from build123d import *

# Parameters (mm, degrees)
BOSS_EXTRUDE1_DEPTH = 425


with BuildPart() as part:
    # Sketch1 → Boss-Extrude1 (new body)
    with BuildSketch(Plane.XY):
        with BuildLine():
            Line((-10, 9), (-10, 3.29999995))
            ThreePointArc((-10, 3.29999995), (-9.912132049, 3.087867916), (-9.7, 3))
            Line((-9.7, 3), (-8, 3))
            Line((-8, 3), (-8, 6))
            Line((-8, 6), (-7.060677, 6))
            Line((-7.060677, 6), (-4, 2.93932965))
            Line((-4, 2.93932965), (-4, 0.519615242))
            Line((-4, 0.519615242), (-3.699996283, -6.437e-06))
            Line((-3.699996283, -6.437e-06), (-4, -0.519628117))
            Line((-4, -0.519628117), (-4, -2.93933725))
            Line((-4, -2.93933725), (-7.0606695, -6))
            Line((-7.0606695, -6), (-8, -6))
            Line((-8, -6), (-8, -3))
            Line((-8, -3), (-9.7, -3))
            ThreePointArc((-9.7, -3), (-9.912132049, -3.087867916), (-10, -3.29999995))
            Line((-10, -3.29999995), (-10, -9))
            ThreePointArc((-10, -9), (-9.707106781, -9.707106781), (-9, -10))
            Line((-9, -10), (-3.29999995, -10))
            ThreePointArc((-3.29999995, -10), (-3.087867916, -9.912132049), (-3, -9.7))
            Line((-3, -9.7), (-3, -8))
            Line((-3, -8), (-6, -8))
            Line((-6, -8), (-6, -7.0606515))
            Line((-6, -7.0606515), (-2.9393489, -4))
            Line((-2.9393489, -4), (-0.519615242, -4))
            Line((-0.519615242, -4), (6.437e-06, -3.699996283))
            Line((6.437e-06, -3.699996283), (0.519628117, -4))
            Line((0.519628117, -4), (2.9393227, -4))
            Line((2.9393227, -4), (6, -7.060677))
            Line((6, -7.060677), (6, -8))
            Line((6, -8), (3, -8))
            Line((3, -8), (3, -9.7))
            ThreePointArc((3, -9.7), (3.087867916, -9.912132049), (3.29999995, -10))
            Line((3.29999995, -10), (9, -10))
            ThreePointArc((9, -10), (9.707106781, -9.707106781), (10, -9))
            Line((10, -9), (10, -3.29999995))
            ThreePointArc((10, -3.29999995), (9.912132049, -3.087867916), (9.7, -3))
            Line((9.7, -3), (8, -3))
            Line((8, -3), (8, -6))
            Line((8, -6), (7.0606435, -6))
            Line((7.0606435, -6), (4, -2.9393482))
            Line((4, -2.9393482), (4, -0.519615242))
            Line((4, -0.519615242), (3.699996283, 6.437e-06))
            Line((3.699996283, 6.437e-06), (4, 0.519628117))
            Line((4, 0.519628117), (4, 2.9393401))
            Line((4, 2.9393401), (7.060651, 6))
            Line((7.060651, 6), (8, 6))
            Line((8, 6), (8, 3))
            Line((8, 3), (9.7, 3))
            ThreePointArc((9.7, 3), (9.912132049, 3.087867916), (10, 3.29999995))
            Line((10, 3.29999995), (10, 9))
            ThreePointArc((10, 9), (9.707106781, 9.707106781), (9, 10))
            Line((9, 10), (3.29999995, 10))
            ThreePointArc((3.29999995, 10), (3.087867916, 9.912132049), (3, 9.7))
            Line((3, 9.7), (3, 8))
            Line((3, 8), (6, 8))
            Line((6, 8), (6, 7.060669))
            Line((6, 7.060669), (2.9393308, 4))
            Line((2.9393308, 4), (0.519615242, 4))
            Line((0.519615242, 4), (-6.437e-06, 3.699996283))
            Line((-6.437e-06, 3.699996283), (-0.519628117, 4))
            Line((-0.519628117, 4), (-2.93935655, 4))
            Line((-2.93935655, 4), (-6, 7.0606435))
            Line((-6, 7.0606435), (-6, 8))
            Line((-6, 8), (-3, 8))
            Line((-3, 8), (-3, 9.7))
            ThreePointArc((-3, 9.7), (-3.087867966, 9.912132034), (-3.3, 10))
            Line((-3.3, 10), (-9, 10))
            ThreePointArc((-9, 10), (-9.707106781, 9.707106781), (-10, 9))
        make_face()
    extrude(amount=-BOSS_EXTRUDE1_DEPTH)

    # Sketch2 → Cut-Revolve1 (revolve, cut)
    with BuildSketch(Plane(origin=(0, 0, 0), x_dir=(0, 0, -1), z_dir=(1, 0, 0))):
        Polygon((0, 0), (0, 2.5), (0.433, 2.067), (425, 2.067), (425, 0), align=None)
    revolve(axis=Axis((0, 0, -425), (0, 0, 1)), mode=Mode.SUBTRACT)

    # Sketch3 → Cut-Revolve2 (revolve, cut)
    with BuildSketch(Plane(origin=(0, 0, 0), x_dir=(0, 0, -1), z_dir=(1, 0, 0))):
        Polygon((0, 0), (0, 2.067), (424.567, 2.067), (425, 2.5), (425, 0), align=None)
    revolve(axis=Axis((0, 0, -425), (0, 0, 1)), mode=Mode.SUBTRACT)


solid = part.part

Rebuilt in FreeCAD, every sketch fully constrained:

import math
import FreeCAD as App
import Part
import Sketcher

V = App.Vector
Q = App.Units.Quantity


def add_polygon(sketch, points):
    """Adds a closed chain of lines whose ends are joined by coincident constraints."""
    first, n = sketch.GeometryCount, len(points)
    for a, b in zip(points, points[1:] + points[:1]):
        sketch.addGeometry(Part.LineSegment(App.Vector(*a, 0), App.Vector(*b, 0)), False)
    for i in range(n):
        sketch.addConstraint(Sketcher.Constraint("Coincident", first + i, 2, first + (i + 1) % n, 1))

doc = App.newDocument("Part")
params = doc.addObject("Spreadsheet::Sheet", "Params")
for row, (alias, value) in enumerate([
    ("sketch1_radius", "1 mm"),
    ("sketch1_radius2", "0.3 mm"),
    ("sketch1_width", "3 mm"),
    ("sketch1_width2", "1.7 mm"),
    ("sketch1_width3", "5.7 mm"),
    ("pad1_length", "425 mm"),
    ("sketch2_height", "425 mm"),
    ("sketch2_width", "2.5 mm"),
    ("groove_angle", "360 deg"),
    ("sketch3_height", "425 mm"),
    ("sketch3_width", "2.5 mm"),
    ("groove2_angle", "360 deg"),
], start=1):
    params.set(f"A{row}", alias)
    params.set(f"B{row}", "=" + value)
    params.setAlias(f"B{row}", alias)

body = doc.addObject("PartDesign::Body", "Body")

sketch1 = body.newObject("Sketcher::SketchObject", "Sketch")
sketch1.AttachmentSupport = (doc.getObject("XY_Plane"), [""])
sketch1.MapMode = "FlatFace"
sketch1.addGeometry(Part.LineSegment(V(-10, 9, 0), V(-10, 3.3, 0)), False)
sketch1.addGeometry(Part.ArcOfCircle(Part.Circle(V(-9.7, 3.3, 0), V(0, 0, 1), 0.3), math.radians(180), math.radians(270)), False)
sketch1.addGeometry(Part.LineSegment(V(-9.7, 3, 0), V(-8, 3, 0)), False)
sketch1.addGeometry(Part.LineSegment(V(-8, 3, 0), V(-8, 6, 0)), False)
sketch1.addGeometry(Part.LineSegment(V(-8, 6, 0), V(-7.06, 6, 0)), False)
sketch1.addGeometry(Part.LineSegment(V(-7.06, 6, 0), V(-4, 2.94, 0)), False)
sketch1.addGeometry(Part.LineSegment(V(-4, 2.94, 0), V(-4, 0.52, 0)), False)
sketch1.addGeometry(Part.LineSegment(V(-4, 0.52, 0), V(-3.7, 0, 0)), False)
sketch1.addGeometry(Part.LineSegment(V(-3.7, 0, 0), V(-4, -0.52, 0)), False)
sketch1.addGeometry(Part.LineSegment(V(-4, -0.52, 0), V(-4, -2.94, 0)), False)
sketch1.addGeometry(Part.LineSegment(V(-4, -2.94, 0), V(-7.06, -6, 0)), False)
sketch1.addGeometry(Part.LineSegment(V(-7.06, -6, 0), V(-8, -6, 0)), False)
sketch1.addGeometry(Part.LineSegment(V(-8, -6, 0), V(-8, -3, 0)), False)
sketch1.addGeometry(Part.LineSegment(V(-8, -3, 0), V(-9.7, -3, 0)), False)
sketch1.addGeometry(Part.ArcOfCircle(Part.Circle(V(-9.7, -3.3, 0), V(0, 0, 1), 0.3), math.radians(90), math.radians(180)), False)
sketch1.addGeometry(Part.LineSegment(V(-10, -3.3, 0), V(-10, -9, 0)), False)
sketch1.addGeometry(Part.ArcOfCircle(Part.Circle(V(-9, -9, 0), V(0, 0, 1), 1), math.radians(-180), math.radians(-90)), False)
sketch1.addGeometry(Part.LineSegment(V(-9, -10, 0), V(-3.3, -10, 0)), False)
sketch1.addGeometry(Part.ArcOfCircle(Part.Circle(V(-3.3, -9.7, 0), V(0, 0, 1), 0.3), math.radians(-90), math.radians(0)), False)
sketch1.addGeometry(Part.LineSegment(V(-3, -9.7, 0), V(-3, -8, 0)), False)
sketch1.addGeometry(Part.LineSegment(V(-3, -8, 0), V(-6, -8, 0)), False)
sketch1.addGeometry(Part.LineSegment(V(-6, -8, 0), V(-6, -7.06, 0)), False)
sketch1.addGeometry(Part.LineSegment(V(-6, -7.06, 0), V(-2.94, -4, 0)), False)
sketch1.addGeometry(Part.LineSegment(V(-2.94, -4, 0), V(-0.52, -4, 0)), False)
sketch1.addGeometry(Part.LineSegment(V(-0.52, -4, 0), V(0, -3.7, 0)), False)
sketch1.addGeometry(Part.LineSegment(V(0, -3.7, 0), V(0.52, -4, 0)), False)
sketch1.addGeometry(Part.LineSegment(V(0.52, -4, 0), V(2.94, -4, 0)), False)
sketch1.addGeometry(Part.LineSegment(V(2.94, -4, 0), V(6, -7.06, 0)), False)
sketch1.addGeometry(Part.LineSegment(V(6, -7.06, 0), V(6, -8, 0)), False)
sketch1.addGeometry(Part.LineSegment(V(6, -8, 0), V(3, -8, 0)), False)
sketch1.addGeometry(Part.LineSegment(V(3, -8, 0), V(3, -9.7, 0)), False)
sketch1.addGeometry(Part.ArcOfCircle(Part.Circle(V(3.3, -9.7, 0), V(0, 0, 1), 0.3), math.radians(180), math.radians(270)), False)
sketch1.addGeometry(Part.LineSegment(V(3.3, -10, 0), V(9, -10, 0)), False)
sketch1.addGeometry(Part.ArcOfCircle(Part.Circle(V(9, -9, 0), V(0, 0, 1), 1), math.radians(-90), math.radians(0)), False)
sketch1.addGeometry(Part.LineSegment(V(10, -9, 0), V(10, -3.3, 0)), False)
sketch1.addGeometry(Part.ArcOfCircle(Part.Circle(V(9.7, -3.3, 0), V(0, 0, 1), 0.3), math.radians(0), math.radians(90)), False)
sketch1.addGeometry(Part.LineSegment(V(9.7, -3, 0), V(8, -3, 0)), False)
sketch1.addGeometry(Part.LineSegment(V(8, -3, 0), V(8, -6, 0)), False)
sketch1.addGeometry(Part.LineSegment(V(8, -6, 0), V(7.06, -6, 0)), False)
sketch1.addGeometry(Part.LineSegment(V(7.06, -6, 0), V(4, -2.94, 0)), False)
sketch1.addGeometry(Part.LineSegment(V(4, -2.94, 0), V(4, -0.52, 0)), False)
sketch1.addGeometry(Part.LineSegment(V(4, -0.52, 0), V(3.7, 0, 0)), False)
sketch1.addGeometry(Part.LineSegment(V(3.7, 0, 0), V(4, 0.52, 0)), False)
sketch1.addGeometry(Part.LineSegment(V(4, 0.52, 0), V(4, 2.94, 0)), False)
sketch1.addGeometry(Part.LineSegment(V(4, 2.94, 0), V(7.06, 6, 0)), False)
sketch1.addGeometry(Part.LineSegment(V(7.06, 6, 0), V(8, 6, 0)), False)
sketch1.addGeometry(Part.LineSegment(V(8, 6, 0), V(8, 3, 0)), False)
sketch1.addGeometry(Part.LineSegment(V(8, 3, 0), V(9.7, 3, 0)), False)
sketch1.addGeometry(Part.ArcOfCircle(Part.Circle(V(9.7, 3.3, 0), V(0, 0, 1), 0.3), math.radians(-90), math.radians(0)), False)
sketch1.addGeometry(Part.LineSegment(V(10, 3.3, 0), V(10, 9, 0)), False)
sketch1.addGeometry(Part.ArcOfCircle(Part.Circle(V(9, 9, 0), V(0, 0, 1), 1), math.radians(0), math.radians(90)), False)
sketch1.addGeometry(Part.LineSegment(V(9, 10, 0), V(3.3, 10, 0)), False)
sketch1.addGeometry(Part.ArcOfCircle(Part.Circle(V(3.3, 9.7, 0), V(0, 0, 1), 0.3), math.radians(90), math.radians(180)), False)
sketch1.addGeometry(Part.LineSegment(V(3, 9.7, 0), V(3, 8, 0)), False)
sketch1.addGeometry(Part.LineSegment(V(3, 8, 0), V(6, 8, 0)), False)
sketch1.addGeometry(Part.LineSegment(V(6, 8, 0), V(6, 7.06, 0)), False)
sketch1.addGeometry(Part.LineSegment(V(6, 7.06, 0), V(2.94, 4, 0)), False)
sketch1.addGeometry(Part.LineSegment(V(2.94, 4, 0), V(0.52, 4, 0)), False)
sketch1.addGeometry(Part.LineSegment(V(0.52, 4, 0), V(0, 3.7, 0)), False)
sketch1.addGeometry(Part.LineSegment(V(0, 3.7, 0), V(-0.52, 4, 0)), False)
sketch1.addGeometry(Part.LineSegment(V(-0.52, 4, 0), V(-2.94, 4, 0)), False)
sketch1.addGeometry(Part.LineSegment(V(-2.94, 4, 0), V(-6, 7.06, 0)), False)
sketch1.addGeometry(Part.LineSegment(V(-6, 7.06, 0), V(-6, 8, 0)), False)
sketch1.addGeometry(Part.LineSegment(V(-6, 8, 0), V(-3, 8, 0)), False)
sketch1.addGeometry(Part.LineSegment(V(-3, 8, 0), V(-3, 9.7, 0)), False)
sketch1.addGeometry(Part.ArcOfCircle(Part.Circle(V(-3.3, 9.7, 0), V(0, 0, 1), 0.3), math.radians(0), math.radians(90)), False)
sketch1.addGeometry(Part.LineSegment(V(-3.3, 10, 0), V(-9, 10, 0)), False)
sketch1.addGeometry(Part.ArcOfCircle(Part.Circle(V(-9, 9, 0), V(0, 0, 1), 1), math.radians(90), math.radians(180)), False)
sketch1.addConstraint(Sketcher.Constraint("Tangent", 0, 2, 1, 1))
sketch1.addConstraint(Sketcher.Constraint("Tangent", 1, 2, 2, 1))
sketch1.addConstraint(Sketcher.Constraint("Coincident", 2, 2, 3, 1))
sketch1.addConstraint(Sketcher.Constraint("Coincident", 3, 2, 4, 1))
sketch1.addConstraint(Sketcher.Constraint("Coincident", 4, 2, 5, 1))
sketch1.addConstraint(Sketcher.Constraint("Coincident", 5, 2, 6, 1))
sketch1.addConstraint(Sketcher.Constraint("Coincident", 6, 2, 7, 1))
sketch1.addConstraint(Sketcher.Constraint("Coincident", 7, 2, 8, 1))
sketch1.addConstraint(Sketcher.Constraint("Coincident", 8, 2, 9, 1))
sketch1.addConstraint(Sketcher.Constraint("Coincident", 9, 2, 10, 1))
sketch1.addConstraint(Sketcher.Constraint("Coincident", 10, 2, 11, 1))
sketch1.addConstraint(Sketcher.Constraint("Coincident", 11, 2, 12, 1))
sketch1.addConstraint(Sketcher.Constraint("Coincident", 12, 2, 13, 1))
sketch1.addConstraint(Sketcher.Constraint("Tangent", 13, 2, 14, 1))
sketch1.addConstraint(Sketcher.Constraint("Tangent", 14, 2, 15, 1))
sketch1.addConstraint(Sketcher.Constraint("Tangent", 15, 2, 16, 1))
sketch1.addConstraint(Sketcher.Constraint("Tangent", 16, 2, 17, 1))
sketch1.addConstraint(Sketcher.Constraint("Tangent", 17, 2, 18, 1))
sketch1.addConstraint(Sketcher.Constraint("Tangent", 18, 2, 19, 1))
sketch1.addConstraint(Sketcher.Constraint("Coincident", 19, 2, 20, 1))
sketch1.addConstraint(Sketcher.Constraint("Coincident", 20, 2, 21, 1))
sketch1.addConstraint(Sketcher.Constraint("Coincident", 21, 2, 22, 1))
sketch1.addConstraint(Sketcher.Constraint("Coincident", 22, 2, 23, 1))
sketch1.addConstraint(Sketcher.Constraint("Coincident", 23, 2, 24, 1))
sketch1.addConstraint(Sketcher.Constraint("Coincident", 24, 2, 25, 1))
sketch1.addConstraint(Sketcher.Constraint("Coincident", 25, 2, 26, 1))
sketch1.addConstraint(Sketcher.Constraint("Coincident", 26, 2, 27, 1))
sketch1.addConstraint(Sketcher.Constraint("Coincident", 27, 2, 28, 1))
sketch1.addConstraint(Sketcher.Constraint("Coincident", 28, 2, 29, 1))
sketch1.addConstraint(Sketcher.Constraint("Coincident", 29, 2, 30, 1))
sketch1.addConstraint(Sketcher.Constraint("Tangent", 30, 2, 31, 1))
sketch1.addConstraint(Sketcher.Constraint("Tangent", 31, 2, 32, 1))
sketch1.addConstraint(Sketcher.Constraint("Tangent", 32, 2, 33, 1))
sketch1.addConstraint(Sketcher.Constraint("Tangent", 33, 2, 34, 1))
sketch1.addConstraint(Sketcher.Constraint("Tangent", 34, 2, 35, 1))
sketch1.addConstraint(Sketcher.Constraint("Tangent", 35, 2, 36, 1))
sketch1.addConstraint(Sketcher.Constraint("Coincident", 36, 2, 37, 1))
sketch1.addConstraint(Sketcher.Constraint("Coincident", 37, 2, 38, 1))
sketch1.addConstraint(Sketcher.Constraint("Coincident", 38, 2, 39, 1))
sketch1.addConstraint(Sketcher.Constraint("Coincident", 39, 2, 40, 1))
sketch1.addConstraint(Sketcher.Constraint("Coincident", 40, 2, 41, 1))
sketch1.addConstraint(Sketcher.Constraint("Coincident", 41, 2, 42, 1))
sketch1.addConstraint(Sketcher.Constraint("Coincident", 42, 2, 43, 1))
sketch1.addConstraint(Sketcher.Constraint("Coincident", 43, 2, 44, 1))
sketch1.addConstraint(Sketcher.Constraint("Coincident", 44, 2, 45, 1))
sketch1.addConstraint(Sketcher.Constraint("Coincident", 45, 2, 46, 1))
sketch1.addConstraint(Sketcher.Constraint("Coincident", 46, 2, 47, 1))
sketch1.addConstraint(Sketcher.Constraint("Tangent", 47, 2, 48, 1))
sketch1.addConstraint(Sketcher.Constraint("Tangent", 48, 2, 49, 1))
sketch1.addConstraint(Sketcher.Constraint("Tangent", 49, 2, 50, 1))
sketch1.addConstraint(Sketcher.Constraint("Tangent", 50, 2, 51, 1))
sketch1.addConstraint(Sketcher.Constraint("Tangent", 51, 2, 52, 1))
sketch1.addConstraint(Sketcher.Constraint("Tangent", 52, 2, 53, 1))
sketch1.addConstraint(Sketcher.Constraint("Coincident", 53, 2, 54, 1))
sketch1.addConstraint(Sketcher.Constraint("Coincident", 54, 2, 55, 1))
sketch1.addConstraint(Sketcher.Constraint("Coincident", 55, 2, 56, 1))
sketch1.addConstraint(Sketcher.Constraint("Coincident", 56, 2, 57, 1))
sketch1.addConstraint(Sketcher.Constraint("Coincident", 57, 2, 58, 1))
sketch1.addConstraint(Sketcher.Constraint("Coincident", 58, 2, 59, 1))
sketch1.addConstraint(Sketcher.Constraint("Coincident", 59, 2, 60, 1))
sketch1.addConstraint(Sketcher.Constraint("Coincident", 60, 2, 61, 1))
sketch1.addConstraint(Sketcher.Constraint("Coincident", 61, 2, 62, 1))
sketch1.addConstraint(Sketcher.Constraint("Coincident", 62, 2, 63, 1))
sketch1.addConstraint(Sketcher.Constraint("Coincident", 63, 2, 64, 1))
sketch1.addConstraint(Sketcher.Constraint("Tangent", 64, 2, 65, 1))
sketch1.addConstraint(Sketcher.Constraint("Tangent", 65, 2, 66, 1))
sketch1.addConstraint(Sketcher.Constraint("Tangent", 66, 2, 67, 1))
sketch1.addConstraint(Sketcher.Constraint("Tangent", 67, 2, 0, 1))
sketch1.addConstraint(Sketcher.Constraint("Vertical", 0))
sketch1.addConstraint(Sketcher.Constraint("Horizontal", 2))
sketch1.addConstraint(Sketcher.Constraint("Vertical", 3))
sketch1.addConstraint(Sketcher.Constraint("Horizontal", 4))
sketch1.addConstraint(Sketcher.Constraint("Vertical", 6))
sketch1.addConstraint(Sketcher.Constraint("Vertical", 9))
sketch1.addConstraint(Sketcher.Constraint("Horizontal", 11))
sketch1.addConstraint(Sketcher.Constraint("Vertical", 12))
sketch1.addConstraint(Sketcher.Constraint("Horizontal", 13))
sketch1.addConstraint(Sketcher.Constraint("Vertical", 15))
sketch1.addConstraint(Sketcher.Constraint("Horizontal", 17))
sketch1.addConstraint(Sketcher.Constraint("Vertical", 19))
sketch1.addConstraint(Sketcher.Constraint("Horizontal", 20))
sketch1.addConstraint(Sketcher.Constraint("Vertical", 21))
sketch1.addConstraint(Sketcher.Constraint("Horizontal", 23))
sketch1.addConstraint(Sketcher.Constraint("Horizontal", 26))
sketch1.addConstraint(Sketcher.Constraint("Vertical", 28))
sketch1.addConstraint(Sketcher.Constraint("Horizontal", 29))
sketch1.addConstraint(Sketcher.Constraint("Vertical", 30))
sketch1.addConstraint(Sketcher.Constraint("Horizontal", 32))
sketch1.addConstraint(Sketcher.Constraint("Vertical", 34))
sketch1.addConstraint(Sketcher.Constraint("Horizontal", 36))
sketch1.addConstraint(Sketcher.Constraint("Vertical", 37))
sketch1.addConstraint(Sketcher.Constraint("Horizontal", 38))
sketch1.addConstraint(Sketcher.Constraint("Vertical", 40))
sketch1.addConstraint(Sketcher.Constraint("Vertical", 43))
sketch1.addConstraint(Sketcher.Constraint("Horizontal", 45))
sketch1.addConstraint(Sketcher.Constraint("Vertical", 46))
sketch1.addConstraint(Sketcher.Constraint("Horizontal", 47))
sketch1.addConstraint(Sketcher.Constraint("Vertical", 49))
sketch1.addConstraint(Sketcher.Constraint("Horizontal", 51))
sketch1.addConstraint(Sketcher.Constraint("Vertical", 53))
sketch1.addConstraint(Sketcher.Constraint("Horizontal", 54))
sketch1.addConstraint(Sketcher.Constraint("Vertical", 55))
sketch1.addConstraint(Sketcher.Constraint("Horizontal", 57))
sketch1.addConstraint(Sketcher.Constraint("Horizontal", 60))
sketch1.addConstraint(Sketcher.Constraint("Vertical", 62))
sketch1.addConstraint(Sketcher.Constraint("Horizontal", 63))
sketch1.addConstraint(Sketcher.Constraint("Vertical", 64))
sketch1.addConstraint(Sketcher.Constraint("Horizontal", 66))
sketch1.addConstraint(Sketcher.Constraint("Equal", 1, 14))
sketch1.addConstraint(Sketcher.Constraint("Equal", 14, 18))
sketch1.addConstraint(Sketcher.Constraint("Equal", 18, 31))
sketch1.addConstraint(Sketcher.Constraint("Equal", 16, 33))
sketch1.addConstraint(Sketcher.Constraint("Equal", 31, 35))
sketch1.addConstraint(Sketcher.Constraint("Equal", 35, 48))
sketch1.addConstraint(Sketcher.Constraint("Equal", 33, 50))
sketch1.addConstraint(Sketcher.Constraint("Equal", 48, 52))
sketch1.addConstraint(Sketcher.Constraint("Equal", 52, 65))
sketch1.addConstraint(Sketcher.Constraint("Equal", 50, 67))
sketch1.addConstraint(Sketcher.Constraint("Symmetric", 1, 3, 35, 3, -1, 1))
sketch1.addConstraint(Sketcher.Constraint("Symmetric", 14, 3, 48, 3, -1, 1))
sketch1.addConstraint(Sketcher.Constraint("Symmetric", 18, 3, 52, 3, -1, 1))
sketch1.addConstraint(Sketcher.Constraint("Symmetric", 31, 3, 65, 3, -1, 1))
sketch1.addConstraint(Sketcher.Constraint("Symmetric", 3, 2, 37, 2, -1, 1))
sketch1.addConstraint(Sketcher.Constraint("Symmetric", 6, 2, 40, 2, -1, 1))
sketch1.addConstraint(Sketcher.Constraint("Symmetric", 7, 2, 41, 2, -1, 1))
sketch1.addConstraint(Sketcher.Constraint("Symmetric", 8, 2, 42, 2, -1, 1))
sketch1.addConstraint(Sketcher.Constraint("Symmetric", 11, 2, 45, 2, -1, 1))
sketch1.addConstraint(Sketcher.Constraint("Symmetric", 20, 2, 54, 2, -1, 1))
sketch1.addConstraint(Sketcher.Constraint("Symmetric", 23, 2, 57, 2, -1, 1))
sketch1.addConstraint(Sketcher.Constraint("Symmetric", 24, 2, 58, 2, -1, 1))
sketch1.addConstraint(Sketcher.Constraint("Symmetric", 25, 2, 59, 2, -1, 1))
sketch1.addConstraint(Sketcher.Constraint("Symmetric", 28, 2, 62, 2, -1, 1))
sketch1.addConstraint(Sketcher.Constraint("Symmetric", 18, 3, 31, 3, -2))
sketch1.addConstraint(Sketcher.Constraint("Symmetric", 14, 3, 35, 3, -2))
sketch1.addConstraint(Sketcher.Constraint("Symmetric", 20, 2, 28, 2, -2))
sketch1.addConstraint(Sketcher.Constraint("Symmetric", 11, 2, 37, 2, -2))
sketch1.addConstraint(Sketcher.Constraint("Symmetric", 5, 2, 9, 2, -1))
sketch1.addConstraint(Sketcher.Constraint("Symmetric", 26, 2, 56, 2, -1))
sketch1.addConstraint(Sketcher.Constraint("Parallel", 10, 22))
sketch1.addConstraint(Sketcher.Constraint("Perpendicular", 7, 24))
sketch1.addConstraint(Sketcher.Constraint("Perpendicular", 8, 25))
sketch1.addConstraint(Sketcher.Constraint("Perpendicular", 22, 27))
sketch1.addConstraint(Sketcher.Constraint("Parallel", 27, 39))
sketch1.addConstraint(Sketcher.Constraint("Perpendicular", 27, 44))
sketch1.addConstraint(Sketcher.Constraint("Parallel", 44, 56))
sketch1.addConstraint(Sketcher.Constraint("Perpendicular", 56, 61))
sketch1.addConstraint(Sketcher.Constraint("Equal", 66, 0))
sketch1.addConstraint(Sketcher.Constraint("Equal", 63, 3))
sketch1.addConstraint(Sketcher.Constraint("Equal", 57, 6))
sketch1.addConstraint(Sketcher.Constraint("Equal", 47, 19))
sketch1.addConstraint(Sketcher.Constraint("Equal", 45, 21))
sketch1.addConstraint(Sketcher.Constraint("Equal", 4, 28))
sketch1.addConstraint(Sketcher.Constraint("Equal", 23, 40))
sketch1.addConstraint(Sketcher.Constraint("Equal", 11, 55))
sketch1.addConstraint(Sketcher.Constraint("Equal", 38, 62))
sketch1.addConstraint(Sketcher.Constraint("Equal", 7, 8))
sketch1.addConstraint(Sketcher.Constraint("Equal", 8, 24))
sketch1.addConstraint(Sketcher.Constraint("Radius", 16, Q("1 mm")))
sketch1.addConstraint(Sketcher.Constraint("Radius", 1, Q("0.3 mm")))
sketch1.addConstraint(Sketcher.Constraint("DistanceX", 20, 2, 20, 1, Q("3 mm")))
sketch1.addConstraint(Sketcher.Constraint("Angle", 7, Q("-60 deg")))
sketch1.addConstraint(Sketcher.Constraint("Angle", 22, Q("45.000004 deg")))
sketch1.addConstraint(Sketcher.Constraint("DistanceX", 2, 1, 2, 2, Q("1.7 mm")))
sketch1.addConstraint(Sketcher.Constraint("DistanceX", 17, 1, 17, 2, Q("5.7 mm")))
sketch1.addConstraint(Sketcher.Constraint("DistanceX", 16, 3, -1, 1, Q("9 mm")))
sketch1.addConstraint(Sketcher.Constraint("DistanceY", 16, 3, -1, 1, Q("9 mm")))
sketch1.addConstraint(Sketcher.Constraint("DistanceX", 5, 2, -1, 1, Q("4 mm")))
sketch1.addConstraint(Sketcher.Constraint("DistanceY", 22, 2, -1, 1, Q("4 mm")))
sketch1.addConstraint(Sketcher.Constraint("DistanceX", 11, 2, 11, 1, Q("0.93933 mm")))
sketch1.addConstraint(Sketcher.Constraint("DistanceX", 45, 1, 45, 2, Q("0.939349 mm")))
sketch1.addConstraint(Sketcher.Constraint("DistanceX", 60, 2, 60, 1, Q("2.419728 mm")))
sketch1.addConstraint(Sketcher.Constraint("DistanceX", 23, 1, 23, 2, Q("2.419734 mm")))
sketch1.setExpression("Constraints[157]", "Params.sketch1_radius")
sketch1.setExpression("Constraints[158]", "Params.sketch1_radius2")
sketch1.setExpression("Constraints[159]", "Params.sketch1_width")
sketch1.setExpression("Constraints[162]", "Params.sketch1_width2")
sketch1.setExpression("Constraints[163]", "Params.sketch1_width3")
pad1 = body.newObject("PartDesign::Pad", "Pad")
pad1.Profile = sketch1
pad1.setExpression("Length", "Params.pad1_length")
pad1.Reversed = True

sketch2 = body.newObject("Sketcher::SketchObject", "Sketch001")
sketch2.AttachmentSupport = (doc.getObject("YZ_Plane"), [""])
sketch2.MapMode = "FlatFace"
add_polygon(sketch2, [(2.5, 0), (0, 0), (0, -425), (2.1, -425), (2.1, -0.4)])
sketch2.addConstraint(Sketcher.Constraint("Horizontal", 0))
sketch2.addConstraint(Sketcher.Constraint("Vertical", 1))
sketch2.addConstraint(Sketcher.Constraint("Horizontal", 2))
sketch2.addConstraint(Sketcher.Constraint("Vertical", 3))
sketch2.addConstraint(Sketcher.Constraint("Coincident", 0, 2, -1, 1))
sketch2.addConstraint(Sketcher.Constraint("DistanceY", 1, 2, 1, 1, Q("425 mm")))
sketch2.addConstraint(Sketcher.Constraint("Angle", 4, Q("45 deg")))
sketch2.addConstraint(Sketcher.Constraint("DistanceX", 0, 2, 0, 1, Q("2.5 mm")))
sketch2.addConstraint(Sketcher.Constraint("DistanceX", 2, 1, 2, 2, Q("2.067 mm")))
sketch2.setExpression("Constraints[10]", "Params.sketch2_height")
sketch2.setExpression("Constraints[12]", "Params.sketch2_width")
groove = body.newObject("PartDesign::Groove", "Groove")
groove.Profile = sketch2
groove.ReferenceAxis = (sketch2, ["V_Axis"])
groove.setExpression("Angle", "Params.groove_angle")

sketch3 = body.newObject("Sketcher::SketchObject", "Sketch002")
sketch3.AttachmentSupport = (doc.getObject("YZ_Plane"), [""])
sketch3.MapMode = "FlatFace"
add_polygon(sketch3, [(2.1, 0), (0, 0), (0, -425), (2.5, -425), (2.1, -424.6)])
sketch3.addConstraint(Sketcher.Constraint("Horizontal", 0))
sketch3.addConstraint(Sketcher.Constraint("Vertical", 1))
sketch3.addConstraint(Sketcher.Constraint("Horizontal", 2))
sketch3.addConstraint(Sketcher.Constraint("Vertical", 4))
sketch3.addConstraint(Sketcher.Constraint("Coincident", 0, 2, -1, 1))
sketch3.addConstraint(Sketcher.Constraint("DistanceY", 1, 2, 1, 1, Q("425 mm")))
sketch3.addConstraint(Sketcher.Constraint("Angle", 3, Q("135 deg")))
sketch3.addConstraint(Sketcher.Constraint("DistanceX", 2, 1, 2, 2, Q("2.5 mm")))
sketch3.addConstraint(Sketcher.Constraint("DistanceX", 0, 2, 0, 1, Q("2.067 mm")))
sketch3.setExpression("Constraints[10]", "Params.sketch3_height")
sketch3.setExpression("Constraints[12]", "Params.sketch3_width")
groove2 = body.newObject("PartDesign::Groove", "Groove001")
groove2.Profile = sketch3
groove2.ReferenceAxis = (sketch3, ["V_Axis"])
groove2.setExpression("Angle", "Params.groove2_angle")

doc.recompute()
